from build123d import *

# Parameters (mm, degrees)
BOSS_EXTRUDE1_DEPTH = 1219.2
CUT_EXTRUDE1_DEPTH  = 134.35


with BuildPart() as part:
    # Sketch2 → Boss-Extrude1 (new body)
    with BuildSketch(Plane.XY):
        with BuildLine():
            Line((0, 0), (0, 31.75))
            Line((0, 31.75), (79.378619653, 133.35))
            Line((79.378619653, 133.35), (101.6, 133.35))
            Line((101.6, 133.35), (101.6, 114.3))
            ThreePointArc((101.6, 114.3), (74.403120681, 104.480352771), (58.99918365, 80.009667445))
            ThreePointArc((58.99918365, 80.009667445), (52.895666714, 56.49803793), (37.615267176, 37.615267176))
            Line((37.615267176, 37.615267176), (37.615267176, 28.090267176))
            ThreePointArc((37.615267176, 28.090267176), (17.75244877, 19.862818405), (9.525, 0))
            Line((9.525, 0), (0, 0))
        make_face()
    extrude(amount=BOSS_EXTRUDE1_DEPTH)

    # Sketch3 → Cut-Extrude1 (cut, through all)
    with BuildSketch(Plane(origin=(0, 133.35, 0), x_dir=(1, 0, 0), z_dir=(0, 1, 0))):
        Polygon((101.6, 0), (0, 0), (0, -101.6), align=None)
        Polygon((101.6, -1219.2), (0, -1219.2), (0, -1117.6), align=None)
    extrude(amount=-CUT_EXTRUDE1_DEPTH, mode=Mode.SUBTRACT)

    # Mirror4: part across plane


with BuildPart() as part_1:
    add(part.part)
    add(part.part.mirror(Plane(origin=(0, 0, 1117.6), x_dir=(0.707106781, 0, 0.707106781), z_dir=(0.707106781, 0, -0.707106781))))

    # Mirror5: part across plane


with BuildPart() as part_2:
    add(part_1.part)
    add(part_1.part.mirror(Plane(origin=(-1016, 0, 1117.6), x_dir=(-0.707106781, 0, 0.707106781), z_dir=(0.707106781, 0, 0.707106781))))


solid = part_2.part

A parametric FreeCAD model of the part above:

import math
import FreeCAD as App
import Part
import Sketcher

V = App.Vector
Q = App.Units.Quantity


def add_polygon(sketch, points):
    """Adds a closed chain of lines whose ends are joined by coincident constraints."""
    first, n = sketch.GeometryCount, len(points)
    for a, b in zip(points, points[1:] + points[:1]):
        sketch.addGeometry(Part.LineSegment(App.Vector(*a, 0), App.Vector(*b, 0)), False)
    for i in range(n):
        sketch.addConstraint(Sketcher.Constraint("Coincident", first + i, 2, first + (i + 1) % n, 1))

doc = App.newDocument("Part")
body = doc.addObject("PartDesign::Body", "Body")

# Sketch on XY plane
sketch1 = doc.addObject("Sketcher::SketchObject", "Sketch")
body.addObject(sketch1)
sketch1.AttachmentSupport = (doc.XY_Plane, [""])
sketch1.MapMode = "FlatFace"
sketch1.addGeometry([
    Part.LineSegment(V(0, 31.75, 0), V(0, 0, 0)),  # 0
    Part.LineSegment(V(0, 0, 0), V(9.525, 0, 0)),  # 1
    Part.ArcOfCircle(Part.Circle(V(37.615267, 0, 0), V(0, 0, 1), 28.090267), math.radians(90), math.radians(180)),  # 2
    Part.LineSegment(V(37.615267, 28.090267, 0), V(37.615267, 37.615267, 0)),  # 3
    Part.ArcOfCircle(Part.Circle(V(1.639144, 82.352047, 0), V(0, 0, 1), 57.407846), math.radians(-51.194689), math.radians(-2.338456)),  # 4
    Part.ArcOfCircle(Part.Circle(V(102.277852, 69.85, 0), V(0, 0, 1), 44.455168), math.radians(90.873679), math.radians(166.789024)),  # 5
    Part.LineSegment(V(101.6, 114.3, 0), V(101.6, 133.35, 0)),  # 6
    Part.LineSegment(V(101.6, 133.35, 0), V(79.37862, 133.35, 0)),  # 7
    Part.LineSegment(V(79.37862, 133.35, 0), V(0, 31.75, 0)),  # 8
], False)
sketch1.addConstraint([
    Sketcher.Constraint("Coincident", 0, 2, 1, 1),
    Sketcher.Constraint("Coincident", 1, 2, 2, 2),
    Sketcher.Constraint("Coincident", 2, 1, 3, 1),
    Sketcher.Constraint("Coincident", 3, 2, 4, 1),
    Sketcher.Constraint("Coincident", 4, 2, 5, 2),
    Sketcher.Constraint("Coincident", 5, 1, 6, 1),
    Sketcher.Constraint("Coincident", 6, 2, 7, 1),
    Sketcher.Constraint("Coincident", 7, 2, 8, 1),
    Sketcher.Constraint("Coincident", 8, 2, 0, 1),
    Sketcher.Constraint("Vertical", 0),
    Sketcher.Constraint("Horizontal", 1),
    Sketcher.Constraint("Vertical", 3),
    Sketcher.Constraint("Vertical", 6),
    Sketcher.Constraint("Horizontal", 7),
    Sketcher.Constraint("Coincident", 0, 2, -1, 1),
    Sketcher.Constraint("PointOnObject", 2, 3, -1),
    Sketcher.Constraint("Equal", 1, 3),
    Sketcher.Constraint("DistanceX", -1, 1, 5, 1, Q("4 in")),
    Sketcher.Constraint("Angle", 8, Q("-128 deg")),
    Sketcher.Constraint("DistanceY", 0, 2, 0, 1, Q("1.25 in")),
    Sketcher.Constraint("DistanceY", 6, 1, 6, 2, Q("0.75 in")),
    Sketcher.Constraint("DistanceY", -1, 1, 5, 1, Q("4.5 in")),
    Sketcher.Constraint("DistanceY", 5, 3, 6, 2, Q("2.5 in")),
    Sketcher.Constraint("DistanceX", 1, 1, 1, 2, Q("0.375 in")),
    Sketcher.Constraint("Radius", 5, Q("44.455168 mm")),
    Sketcher.Constraint("Radius", 2, Q("28.090267 mm")),
    Sketcher.Constraint("Radius", 4, Q("57.407846 mm")),
    Sketcher.Constraint("DistanceY", 3, 2, 4, 2, Q("42.3944 mm")),
    Sketcher.Constraint("DistanceY", 2, 1, 4, 3, Q("54.261779 mm")),
])
pad1 = doc.addObject("PartDesign::Pad", "Pad")
body.addObject(pad1)
pad1.Profile = sketch1
pad1.Length = Q("48 in")

# Sketch on XZ plane
sketch2 = doc.addObject("Sketcher::SketchObject", "Sketch001")
body.addObject(sketch2)
sketch2.AttachmentSupport = (doc.XZ_Plane, [""])
sketch2.MapMode = "FlatFace"
sketch2.AttachmentOffset = App.Placement(V(0, 0, -5.25 * 25.4), App.Rotation())
add_polygon(sketch2, [(101.6, 0), (0, 0), (0, 101.6)])  # lines 0-2
add_polygon(sketch2, [(0, 1219.2), (101.6, 1219.2), (0, 1117.6)])  # lines 3-5
sketch2.addConstraint([
    Sketcher.Constraint("Horizontal", 0),
    Sketcher.Constraint("Vertical", 1),
    Sketcher.Constraint("Horizontal", 3),
    Sketcher.Constraint("Vertical", 5),
    Sketcher.Constraint("Coincident", 0, 2, -1, 1),
    Sketcher.Constraint("PointOnObject", 4, 2, -2),
    Sketcher.Constraint("Perpendicular", 2, 4),
    Sketcher.Constraint("Vertical", 2, 2, 3, 2),
    Sketcher.Constraint("Equal", 3, 1),
    Sketcher.Constraint("DistanceX", 0, 2, 0, 1, Q("4 in")),
    Sketcher.Constraint("DistanceY", -1, 1, 3, 2, Q("48 in")),
])
pocket1 = doc.addObject("PartDesign::Pocket", "Pocket")
body.addObject(pocket1)
pocket1.Profile = sketch2
pocket1.Type = "ThroughAll"
pocket1.Reversed = True
body2 = doc.addObject("PartDesign::Body", "Body001")
doc.recompute()

body2.BaseFeature = body
doc.recompute()

mirroring = doc.addObject("Part::Mirroring", "Mirroring")
mirroring.Source = body
mirroring.Base = V(0, 0, 1117.6)
mirroring.Normal = V(0.707106781, 0, -0.707106781)
body3 = doc.addObject("PartDesign::Body", "Body002")
body3.BaseFeature = mirroring
boolean = doc.addObject("PartDesign::Boolean", "Boolean")
body2.addObject(boolean)
boolean.Type = "Fuse"
boolean.addObjects([body3])
doc.recompute()
body4 = doc.addObject("PartDesign::Body", "Body003")
doc.recompute()

body4.BaseFeature = body2
doc.recompute()

mirroring2 = doc.addObject("Part::Mirroring", "Mirroring001")
mirroring2.Source = body2
mirroring2.Base = V(-1016, 0, 1117.6)
mirroring2.Normal = V(0.707106781, 0, 0.707106781)
body5 = doc.addObject("PartDesign::Body", "Body004")
body5.BaseFeature = mirroring2
boolean2 = doc.addObject("PartDesign::Boolean", "Boolean001")
body4.addObject(boolean2)
boolean2.Type = "Fuse"
boolean2.addObjects([body5])
doc.recompute()
mirroring.Visibility = False
mirroring2.Visibility = False

doc.recompute()
